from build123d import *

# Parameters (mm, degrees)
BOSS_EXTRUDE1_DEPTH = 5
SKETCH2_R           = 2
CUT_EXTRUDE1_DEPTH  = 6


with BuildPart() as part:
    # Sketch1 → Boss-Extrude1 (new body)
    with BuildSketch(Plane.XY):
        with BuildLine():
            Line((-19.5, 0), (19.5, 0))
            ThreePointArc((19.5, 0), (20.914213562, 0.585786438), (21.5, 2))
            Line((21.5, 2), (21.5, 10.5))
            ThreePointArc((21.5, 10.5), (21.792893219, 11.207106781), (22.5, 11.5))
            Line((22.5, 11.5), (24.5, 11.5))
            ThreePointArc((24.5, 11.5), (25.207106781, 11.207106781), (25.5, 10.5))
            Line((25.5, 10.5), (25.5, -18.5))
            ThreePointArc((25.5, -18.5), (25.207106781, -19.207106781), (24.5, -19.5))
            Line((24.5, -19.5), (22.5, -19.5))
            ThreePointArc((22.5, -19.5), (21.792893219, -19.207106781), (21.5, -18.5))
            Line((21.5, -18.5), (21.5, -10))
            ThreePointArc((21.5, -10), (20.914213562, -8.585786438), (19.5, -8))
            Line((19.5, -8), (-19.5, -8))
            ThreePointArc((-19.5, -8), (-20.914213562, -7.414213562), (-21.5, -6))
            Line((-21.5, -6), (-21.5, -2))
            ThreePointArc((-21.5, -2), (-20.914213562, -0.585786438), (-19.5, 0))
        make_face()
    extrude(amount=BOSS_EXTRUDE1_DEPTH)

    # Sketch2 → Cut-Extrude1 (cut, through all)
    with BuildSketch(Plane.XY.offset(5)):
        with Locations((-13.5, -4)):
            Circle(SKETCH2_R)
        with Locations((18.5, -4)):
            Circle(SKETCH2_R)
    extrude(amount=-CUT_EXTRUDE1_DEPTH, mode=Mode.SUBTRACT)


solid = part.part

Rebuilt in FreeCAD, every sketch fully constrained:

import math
import FreeCAD as App
import Part
import Sketcher
from FreeCAD import Vector

doc = App.newDocument("Part")
body = doc.addObject("PartDesign::Body", "Body")

sketch1 = doc.addObject("Sketcher::SketchObject", "Sketch")
body.addObject(sketch1)
sketch1.AttachmentSupport = (doc.XY_Plane, [""])
sketch1.MapMode = "FlatFace"
sketch1.addGeometry([
    Part.LineSegment(Vector(19.5, 0, 0), Vector(-19.5, 0, 0)),
    Part.ArcOfCircle(Part.Circle(Vector(-19.5, -2, 0), Vector(0, 0, 1), 2), math.radians(90), math.radians(180)),
    Part.LineSegment(Vector(-21.5, -2, 0), Vector(-21.5, -6, 0)),
    Part.ArcOfCircle(Part.Circle(Vector(-19.5, -6, 0), Vector(0, 0, 1), 2), math.radians(-180), math.radians(-90)),
    Part.LineSegment(Vector(-19.5, -8, 0), Vector(19.5, -8, 0)),
    Part.ArcOfCircle(Part.Circle(Vector(19.5, -10, 0), Vector(0, 0, 1), 2), math.radians(0), math.radians(90)),
    Part.LineSegment(Vector(21.5, -10, 0), Vector(21.5, -18.5, 0)),
    Part.ArcOfCircle(Part.Circle(Vector(22.5, -18.5, 0), Vector(0, 0, 1), 1), math.radians(-180), math.radians(-90)),
    Part.LineSegment(Vector(22.5, -19.5, 0), Vector(24.5, -19.5, 0)),
    Part.ArcOfCircle(Part.Circle(Vector(24.5, -18.5, 0), Vector(0, 0, 1), 1), math.radians(-90), math.radians(0)),
    Part.LineSegment(Vector(25.5, -18.5, 0), Vector(25.5, 10.5, 0)),
    Part.ArcOfCircle(Part.Circle(Vector(24.5, 10.5, 0), Vector(0, 0, 1), 1), math.radians(0), math.radians(90)),
    Part.LineSegment(Vector(24.5, 11.5, 0), Vector(22.5, 11.5, 0)),
    Part.ArcOfCircle(Part.Circle(Vector(22.5, 10.5, 0), Vector(0, 0, 1), 1), math.radians(90), math.radians(180)),
    Part.LineSegment(Vector(21.5, 10.5, 0), Vector(21.5, 2, 0)),
    Part.ArcOfCircle(Part.Circle(Vector(19.5, 2, 0), Vector(0, 0, 1), 2), math.radians(-90), math.radians(0)),
], False)
sketch1.addConstraint([
    Sketcher.Constraint("Tangent", 0, 2, 1, 1),
    Sketcher.Constraint("Tangent", 1, 2, 2, 1),
    Sketcher.Constraint("Tangent", 2, 2, 3, 1),
    Sketcher.Constraint("Tangent", 3, 2, 4, 1),
    Sketcher.Constraint("Tangent", 4, 2, 5, 2),
    Sketcher.Constraint("Tangent", 5, 1, 6, 1),
    Sketcher.Constraint("Tangent", 6, 2, 7, 1),
    Sketcher.Constraint("Tangent", 7, 2, 8, 1),
    Sketcher.Constraint("Tangent", 8, 2, 9, 1),
    Sketcher.Constraint("Tangent", 9, 2, 10, 1),
    Sketcher.Constraint("Tangent", 10, 2, 11, 1),
    Sketcher.Constraint("Tangent", 11, 2, 12, 1),
    Sketcher.Constraint("Tangent", 12, 2, 13, 1),
    Sketcher.Constraint("Tangent", 13, 2, 14, 1),
    Sketcher.Constraint("Tangent", 14, 2, 15, 2),
    Sketcher.Constraint("Tangent", 15, 1, 0, 1),
    Sketcher.Constraint("Horizontal", 0),
    Sketcher.Constraint("Vertical", 2),
    Sketcher.Constraint("Horizontal", 4),
    Sketcher.Constraint("Vertical", 6),
    Sketcher.Constraint("Horizontal", 8),
    Sketcher.Constraint("Vertical", 10),
    Sketcher.Constraint("Horizontal", 12),
    Sketcher.Constraint("Vertical", 14),
    Sketcher.Constraint("Equal", 1, 3),
    Sketcher.Constraint("Equal", 3, 5),
    Sketcher.Constraint("Equal", 7, 9),
    Sketcher.Constraint("Equal", 9, 11),
    Sketcher.Constraint("Equal", 11, 13),
    Sketcher.Constraint("Equal", 5, 15),
    Sketcher.Constraint("Symmetric", 1, 3, 15, 3, -1, 1),
    Sketcher.Constraint("Vertical", 7, 3, 13, 3),
    Sketcher.Constraint("Equal", 6, 14),
    Sketcher.Constraint("Radius", 1, 2.0),
    Sketcher.Constraint("Radius", 7, 1.0),
    Sketcher.Constraint("DistanceX", 0, 2, 0, 1, 39.0),
    Sketcher.Constraint("DistanceX", 8, 1, 8, 2, 2.0),
    Sketcher.Constraint("DistanceY", 2, 2, 2, 1, 4.0),
    Sketcher.Constraint("DistanceY", 10, 1, 10, 2, 29.0),
])
pad1 = doc.addObject("PartDesign::Pad", "Pad")
body.addObject(pad1)
pad1.Profile = sketch1
pad1.Length = 5

sketch2 = doc.addObject("Sketcher::SketchObject", "Sketch001")
body.addObject(sketch2)
sketch2.AttachmentSupport = (doc.XY_Plane, [""])
sketch2.MapMode = "FlatFace"
sketch2.AttachmentOffset = App.Placement(Vector(0, 0, 5), App.Rotation())
sketch2.addGeometry([
    Part.Circle(Vector(-13.5, -4, 0), Vector(0, 0, 1), 2),
    Part.Circle(Vector(18.5, -4, 0), Vector(0, 0, 1), 2),
], False)
sketch2.addConstraint([
    Sketcher.Constraint("Equal", 0, 1),
    Sketcher.Constraint("Horizontal", 0, 3, 1, 3),
    Sketcher.Constraint("Diameter", 0, 4.0),
    Sketcher.Constraint("DistanceY", 0, 3, -1, 1, 4.0),
    Sketcher.Constraint("DistanceX", 0, 3, 1, 3, 32.0),
    Sketcher.Constraint("DistanceX", 0, 3, -1, 1, 13.5),
])
pocket1 = doc.addObject("PartDesign::Pocket", "Pocket")
body.addObject(pocket1)
pocket1.Profile = sketch2
pocket1.Type = "ThroughAll"

doc.recompute()
